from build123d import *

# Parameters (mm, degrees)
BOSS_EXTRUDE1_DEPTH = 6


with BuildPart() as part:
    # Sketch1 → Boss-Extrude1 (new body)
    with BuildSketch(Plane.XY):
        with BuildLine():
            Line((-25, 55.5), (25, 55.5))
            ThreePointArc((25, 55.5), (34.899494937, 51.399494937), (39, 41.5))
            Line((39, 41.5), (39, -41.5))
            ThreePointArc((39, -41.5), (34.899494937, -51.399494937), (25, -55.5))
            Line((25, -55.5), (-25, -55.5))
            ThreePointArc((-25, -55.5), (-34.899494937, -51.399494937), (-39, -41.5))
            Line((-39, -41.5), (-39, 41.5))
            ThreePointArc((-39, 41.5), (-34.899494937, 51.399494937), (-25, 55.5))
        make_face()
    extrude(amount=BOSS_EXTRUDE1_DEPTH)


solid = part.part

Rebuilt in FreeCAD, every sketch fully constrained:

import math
import FreeCAD as App
import Part
import Sketcher
from FreeCAD import Vector
Q = App.Units.Quantity

doc = App.newDocument("Part")
params = doc.addObject("Spreadsheet::Sheet", "Params")
for row, (alias, value) in enumerate([
    ("sketch1_radius", "14 mm"),
    ("sketch1_width", "50 mm"),
    ("sketch1_height", "83 mm"),
    ("pad1_length", "6 mm"),
], start=1):
    params.set(f"A{row}", alias)
    params.set(f"B{row}", "=" + value)
    params.setAlias(f"B{row}", alias)

body = doc.addObject("PartDesign::Body", "Body")

sketch1 = body.newObject("Sketcher::SketchObject", "Sketch")
sketch1.AttachmentSupport = (doc.getObject("XY_Plane"), [""])
sketch1.MapMode = "FlatFace"
sketch1.addGeometry(Part.LineSegment(Vector(25, 55.5, 0), Vector(-25, 55.5, 0)), False)
sketch1.addGeometry(Part.ArcOfCircle(Part.Circle(Vector(-25, 41.5, 0), Vector(0, 0, 1), 14), math.radians(90), math.radians(180)), False)
sketch1.addGeometry(Part.LineSegment(Vector(-39, 41.5, 0), Vector(-39, -41.5, 0)), False)
sketch1.addGeometry(Part.ArcOfCircle(Part.Circle(Vector(-25, -41.5, 0), Vector(0, 0, 1), 14), math.radians(180), math.radians(270)), False)
sketch1.addGeometry(Part.LineSegment(Vector(-25, -55.5, 0), Vector(25, -55.5, 0)), False)
sketch1.addGeometry(Part.ArcOfCircle(Part.Circle(Vector(25, -41.5, 0), Vector(0, 0, 1), 14), math.radians(-90), math.radians(0)), False)
sketch1.addGeometry(Part.LineSegment(Vector(39, -41.5, 0), Vector(39, 41.5, 0)), False)
sketch1.addGeometry(Part.ArcOfCircle(Part.Circle(Vector(25, 41.5, 0), Vector(0, 0, 1), 14), math.radians(0), math.radians(90)), False)
sketch1.addConstraint(Sketcher.Constraint("Tangent", 0, 2, 1, 1))
sketch1.addConstraint(Sketcher.Constraint("Tangent", 1, 2, 2, 1))
sketch1.addConstraint(Sketcher.Constraint("Tangent", 2, 2, 3, 1))
sketch1.addConstraint(Sketcher.Constraint("Tangent", 3, 2, 4, 1))
sketch1.addConstraint(Sketcher.Constraint("Tangent", 4, 2, 5, 1))
sketch1.addConstraint(Sketcher.Constraint("Tangent", 5, 2, 6, 1))
sketch1.addConstraint(Sketcher.Constraint("Tangent", 6, 2, 7, 1))
sketch1.addConstraint(Sketcher.Constraint("Tangent", 7, 2, 0, 1))
sketch1.addConstraint(Sketcher.Constraint("Horizontal", 0))
sketch1.addConstraint(Sketcher.Constraint("Vertical", 2))
sketch1.addConstraint(Sketcher.Constraint("Horizontal", 4))
sketch1.addConstraint(Sketcher.Constraint("Vertical", 6))
sketch1.addConstraint(Sketcher.Constraint("Equal", 1, 3))
sketch1.addConstraint(Sketcher.Constraint("Equal", 3, 5))
sketch1.addConstraint(Sketcher.Constraint("Equal", 5, 7))
sketch1.addConstraint(Sketcher.Constraint("Symmetric", 1, 3, 5, 3, -1, 1))
sketch1.addConstraint(Sketcher.Constraint("Radius", 1, Q("14 mm")))
sketch1.addConstraint(Sketcher.Constraint("DistanceX", 0, 2, 0, 1, Q("50 mm")))
sketch1.addConstraint(Sketcher.Constraint("DistanceY", 2, 2, 2, 1, Q("83 mm")))
sketch1.setExpression("Constraints[16]", "Params.sketch1_radius")
sketch1.setExpression("Constraints[17]", "Params.sketch1_width")
sketch1.setExpression("Constraints[18]", "Params.sketch1_height")
pad1 = body.newObject("PartDesign::Pad", "Pad")
pad1.Profile = sketch1
pad1.setExpression("Length", "Params.pad1_length")

doc.recompute()
